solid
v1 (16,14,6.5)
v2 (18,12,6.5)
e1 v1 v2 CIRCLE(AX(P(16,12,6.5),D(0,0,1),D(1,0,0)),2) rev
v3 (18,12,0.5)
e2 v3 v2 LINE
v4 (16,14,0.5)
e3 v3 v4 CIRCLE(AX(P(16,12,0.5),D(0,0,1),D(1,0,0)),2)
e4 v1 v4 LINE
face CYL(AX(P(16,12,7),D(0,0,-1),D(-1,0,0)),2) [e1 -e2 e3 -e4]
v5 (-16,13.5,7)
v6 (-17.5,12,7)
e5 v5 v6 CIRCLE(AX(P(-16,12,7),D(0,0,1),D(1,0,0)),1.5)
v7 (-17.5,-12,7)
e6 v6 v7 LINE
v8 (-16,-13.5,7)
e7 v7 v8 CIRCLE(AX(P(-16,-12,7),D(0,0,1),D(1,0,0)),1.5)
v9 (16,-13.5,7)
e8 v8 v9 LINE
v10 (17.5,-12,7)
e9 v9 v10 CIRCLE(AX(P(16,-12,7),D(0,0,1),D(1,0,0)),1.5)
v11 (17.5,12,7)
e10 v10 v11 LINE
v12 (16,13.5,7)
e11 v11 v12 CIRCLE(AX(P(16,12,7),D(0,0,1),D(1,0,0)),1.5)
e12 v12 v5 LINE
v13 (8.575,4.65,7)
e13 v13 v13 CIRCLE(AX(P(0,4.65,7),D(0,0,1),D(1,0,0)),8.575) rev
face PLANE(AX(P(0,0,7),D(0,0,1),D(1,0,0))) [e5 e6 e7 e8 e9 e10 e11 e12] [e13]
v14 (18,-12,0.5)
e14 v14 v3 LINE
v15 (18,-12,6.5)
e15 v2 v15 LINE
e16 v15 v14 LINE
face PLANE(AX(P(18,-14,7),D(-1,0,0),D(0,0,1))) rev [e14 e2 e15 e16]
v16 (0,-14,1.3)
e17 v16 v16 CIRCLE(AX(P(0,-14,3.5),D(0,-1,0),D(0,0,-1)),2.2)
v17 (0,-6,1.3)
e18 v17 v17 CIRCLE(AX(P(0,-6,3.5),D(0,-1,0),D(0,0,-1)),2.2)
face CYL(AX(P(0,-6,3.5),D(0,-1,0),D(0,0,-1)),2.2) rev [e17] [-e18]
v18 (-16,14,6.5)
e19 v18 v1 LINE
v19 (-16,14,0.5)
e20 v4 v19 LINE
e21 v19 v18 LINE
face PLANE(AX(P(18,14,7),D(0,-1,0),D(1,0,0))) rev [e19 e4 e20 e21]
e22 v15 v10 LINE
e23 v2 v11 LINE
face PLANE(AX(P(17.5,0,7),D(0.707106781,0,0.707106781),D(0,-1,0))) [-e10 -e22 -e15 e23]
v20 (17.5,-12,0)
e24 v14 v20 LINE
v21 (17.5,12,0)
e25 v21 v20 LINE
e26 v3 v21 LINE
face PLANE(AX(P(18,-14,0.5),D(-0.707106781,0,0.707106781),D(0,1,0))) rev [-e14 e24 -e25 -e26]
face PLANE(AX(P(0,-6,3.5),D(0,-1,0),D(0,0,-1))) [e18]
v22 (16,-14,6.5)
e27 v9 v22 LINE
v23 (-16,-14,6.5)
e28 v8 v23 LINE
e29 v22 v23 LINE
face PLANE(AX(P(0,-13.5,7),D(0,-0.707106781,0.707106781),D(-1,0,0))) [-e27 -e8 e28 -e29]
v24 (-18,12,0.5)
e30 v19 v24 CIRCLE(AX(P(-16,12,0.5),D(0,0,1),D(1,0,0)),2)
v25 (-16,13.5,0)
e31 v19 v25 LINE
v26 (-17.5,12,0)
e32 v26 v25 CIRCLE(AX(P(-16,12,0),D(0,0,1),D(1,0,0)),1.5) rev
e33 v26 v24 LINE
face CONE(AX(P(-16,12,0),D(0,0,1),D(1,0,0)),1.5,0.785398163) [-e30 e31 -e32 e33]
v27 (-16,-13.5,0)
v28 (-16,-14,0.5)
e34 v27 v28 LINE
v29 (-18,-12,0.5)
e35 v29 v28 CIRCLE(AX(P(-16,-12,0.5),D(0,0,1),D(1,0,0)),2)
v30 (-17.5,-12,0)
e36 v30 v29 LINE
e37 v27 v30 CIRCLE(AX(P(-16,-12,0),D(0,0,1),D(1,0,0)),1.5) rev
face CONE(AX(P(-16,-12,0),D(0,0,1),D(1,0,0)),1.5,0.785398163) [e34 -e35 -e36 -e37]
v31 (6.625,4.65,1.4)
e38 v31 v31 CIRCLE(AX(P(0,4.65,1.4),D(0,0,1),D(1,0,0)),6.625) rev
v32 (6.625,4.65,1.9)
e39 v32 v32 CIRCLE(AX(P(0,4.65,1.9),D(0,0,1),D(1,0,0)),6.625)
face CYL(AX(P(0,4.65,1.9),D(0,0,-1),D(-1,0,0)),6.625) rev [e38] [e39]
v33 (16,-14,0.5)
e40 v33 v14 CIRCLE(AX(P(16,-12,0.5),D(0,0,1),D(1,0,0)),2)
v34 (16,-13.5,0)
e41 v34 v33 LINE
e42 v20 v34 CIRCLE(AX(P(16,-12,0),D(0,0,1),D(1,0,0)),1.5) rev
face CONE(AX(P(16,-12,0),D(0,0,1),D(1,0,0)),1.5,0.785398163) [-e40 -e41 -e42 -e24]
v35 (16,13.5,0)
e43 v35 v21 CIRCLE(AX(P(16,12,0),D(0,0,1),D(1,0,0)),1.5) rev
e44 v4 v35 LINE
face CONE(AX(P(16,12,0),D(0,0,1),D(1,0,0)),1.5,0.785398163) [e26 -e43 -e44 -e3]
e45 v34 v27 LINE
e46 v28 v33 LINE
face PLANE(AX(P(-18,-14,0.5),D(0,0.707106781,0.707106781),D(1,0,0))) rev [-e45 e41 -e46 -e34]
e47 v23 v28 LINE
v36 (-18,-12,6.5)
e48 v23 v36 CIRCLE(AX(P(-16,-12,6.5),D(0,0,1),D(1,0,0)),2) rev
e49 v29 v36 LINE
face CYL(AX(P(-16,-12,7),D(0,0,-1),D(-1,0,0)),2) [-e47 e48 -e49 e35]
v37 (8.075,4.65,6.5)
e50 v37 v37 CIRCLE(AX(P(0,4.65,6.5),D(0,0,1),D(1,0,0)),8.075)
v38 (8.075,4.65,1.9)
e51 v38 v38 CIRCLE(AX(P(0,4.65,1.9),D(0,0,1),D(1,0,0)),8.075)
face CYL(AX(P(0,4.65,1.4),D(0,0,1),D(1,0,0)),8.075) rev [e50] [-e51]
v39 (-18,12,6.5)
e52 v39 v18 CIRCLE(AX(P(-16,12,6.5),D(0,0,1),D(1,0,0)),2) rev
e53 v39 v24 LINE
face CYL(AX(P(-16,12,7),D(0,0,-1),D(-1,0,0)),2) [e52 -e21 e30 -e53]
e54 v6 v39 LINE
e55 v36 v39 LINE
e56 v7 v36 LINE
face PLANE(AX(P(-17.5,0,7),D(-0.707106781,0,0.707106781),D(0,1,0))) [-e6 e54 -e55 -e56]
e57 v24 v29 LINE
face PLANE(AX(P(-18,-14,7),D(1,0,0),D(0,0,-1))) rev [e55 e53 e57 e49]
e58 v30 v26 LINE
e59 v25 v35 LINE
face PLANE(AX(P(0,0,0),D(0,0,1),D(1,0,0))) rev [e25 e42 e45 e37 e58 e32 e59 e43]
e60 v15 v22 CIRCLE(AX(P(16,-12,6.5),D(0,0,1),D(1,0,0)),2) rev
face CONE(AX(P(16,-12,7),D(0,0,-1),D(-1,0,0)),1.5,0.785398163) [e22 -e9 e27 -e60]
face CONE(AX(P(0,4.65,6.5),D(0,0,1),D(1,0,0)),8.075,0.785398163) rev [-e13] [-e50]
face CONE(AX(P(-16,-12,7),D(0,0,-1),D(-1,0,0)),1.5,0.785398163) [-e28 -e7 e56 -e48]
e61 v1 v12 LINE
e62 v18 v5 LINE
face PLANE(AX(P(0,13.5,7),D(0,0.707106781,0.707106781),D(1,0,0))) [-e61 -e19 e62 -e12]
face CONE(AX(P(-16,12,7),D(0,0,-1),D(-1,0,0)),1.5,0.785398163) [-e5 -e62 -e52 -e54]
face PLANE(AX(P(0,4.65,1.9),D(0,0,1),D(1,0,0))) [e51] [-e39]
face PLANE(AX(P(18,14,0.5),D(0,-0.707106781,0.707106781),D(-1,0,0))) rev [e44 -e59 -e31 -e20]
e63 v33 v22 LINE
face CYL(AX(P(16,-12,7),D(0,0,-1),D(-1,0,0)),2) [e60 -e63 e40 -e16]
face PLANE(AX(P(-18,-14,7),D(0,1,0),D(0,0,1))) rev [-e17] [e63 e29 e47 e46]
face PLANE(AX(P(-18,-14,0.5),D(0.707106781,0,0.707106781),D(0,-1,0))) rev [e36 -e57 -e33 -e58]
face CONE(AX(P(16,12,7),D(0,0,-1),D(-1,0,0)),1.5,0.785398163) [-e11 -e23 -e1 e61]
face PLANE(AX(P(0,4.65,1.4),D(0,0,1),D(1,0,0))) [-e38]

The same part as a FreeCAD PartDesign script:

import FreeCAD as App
import Part
import Sketcher
from FreeCAD import Vector
Q = App.Units.Quantity


def edges_at(feature, points):
    """Names of the edges that pass closest to the given points."""
    edges = feature.Shape.Edges
    near = lambda p: min(range(len(edges)), key=lambda i: edges[i].distToShape(Part.Vertex(*p))[0])
    return sorted({f"Edge{near(p) + 1}" for p in points})

doc = App.newDocument("Part")
body = doc.addObject("PartDesign::Body", "Body")

# Sketch on XY plane
sketch1 = doc.addObject("Sketcher::SketchObject", "Sketch")
body.addObject(sketch1)
sketch1.AttachmentSupport = (doc.XY_Plane, [""])
sketch1.MapMode = "FlatFace"
sketch1.addGeometry([
    Part.LineSegment(Vector(-18, 14, 0), Vector(-18, -14, 0)),
    Part.LineSegment(Vector(-18, -14, 0), Vector(18, -14, 0)),
    Part.LineSegment(Vector(18, -14, 0), Vector(18, 14, 0)),
    Part.LineSegment(Vector(18, 14, 0), Vector(-18, 14, 0)),
], False)
sketch1.addConstraint([
    Sketcher.Constraint("Coincident", 0, 2, 1, 1),
    Sketcher.Constraint("Coincident", 1, 2, 2, 1),
    Sketcher.Constraint("Coincident", 2, 2, 3, 1),
    Sketcher.Constraint("Coincident", 3, 2, 0, 1),
    Sketcher.Constraint("Vertical", 0),
    Sketcher.Constraint("Horizontal", 1),
    Sketcher.Constraint("Vertical", 2),
    Sketcher.Constraint("Horizontal", 3),
    Sketcher.Constraint("Symmetric", 0, 2, 2, 2, -1, 1),
    Sketcher.Constraint("DistanceX", 1, 1, 1, 2, Q("36 mm")),
    Sketcher.Constraint("DistanceY", 0, 2, 0, 1, Q("28 mm")),
])
pad1 = doc.addObject("PartDesign::Pad", "Pad")
body.addObject(pad1)
pad1.Profile = sketch1
pad1.Length = 7

# Sketch on XY plane
sketch2 = doc.addObject("Sketcher::SketchObject", "Sketch001")
body.addObject(sketch2)
sketch2.AttachmentSupport = (doc.XY_Plane, [""])
sketch2.MapMode = "FlatFace"
sketch2.AttachmentOffset = App.Placement(Vector(0, 0, 7), App.Rotation())
sketch2.addGeometry(Part.Circle(Vector(0, 4.65, 0), Vector(0, 0, 1), 8.075), False)
sketch2.addConstraint([
    Sketcher.Constraint("PointOnObject", 0, 3, -2),
    Sketcher.Constraint("Diameter", 0, Q("16.15 mm")),
    Sketcher.Constraint("DistanceY", -1, 1, 0, 3, Q("4.65 mm")),
])
pocket1 = doc.addObject("PartDesign::Pocket", "Pocket")
body.addObject(pocket1)
pocket1.Profile = sketch2
pocket1.Length = 5.6

# Sketch on XY plane
sketch3 = doc.addObject("Sketcher::SketchObject", "Sketch002")
body.addObject(sketch3)
sketch3.AttachmentSupport = (doc.XY_Plane, [""])
sketch3.MapMode = "FlatFace"
sketch3.AttachmentOffset = App.Placement(Vector(0, 0, 1.9), App.Rotation())
sketch3.addGeometry([
    Part.Circle(Vector(0, 4.65, 0), Vector(0, 0, 1), 8.075),
    Part.Circle(Vector(0, 4.65, 0), Vector(0, 0, 1), 6.625),
], False)
sketch3.addConstraint([
    Sketcher.Constraint("Coincident", 1, 3, 0, 3),
    Sketcher.Constraint("PointOnObject", 0, 3, -2),
    Sketcher.Constraint("Diameter", 0, Q("16.15 mm")),
    Sketcher.Constraint("Diameter", 1, Q("13.25 mm")),
    Sketcher.Constraint("DistanceY", -1, 1, 0, 3, Q("4.65 mm")),
])
pad2 = doc.addObject("PartDesign::Pad", "Pad001")
body.addObject(pad2)
pad2.Profile = sketch3
pad2.Length = 0.5
pad2.Reversed = True
doc.recompute()

fillet = doc.addObject("PartDesign::Fillet", "Fillet")
body.addObject(fillet)
fillet.Base = (pad2, edges_at(pad2, [
    (18, -14, 3.5),
    (-18, -14, 3.5),
    (-18, 14, 3.5),
    (18, 14, 3.5),
]))
fillet.Radius = 2

# Sketch on XZ plane
sketch4 = doc.addObject("Sketcher::SketchObject", "Sketch003")
body.addObject(sketch4)
sketch4.AttachmentSupport = (doc.XZ_Plane, [""])
sketch4.MapMode = "FlatFace"
sketch4.AttachmentOffset = App.Placement(Vector(0, 0, 14), App.Rotation())
sketch4.addGeometry(Part.Circle(Vector(0, 3.5, 0), Vector(0, 0, 1), 2.2), False)
sketch4.addConstraint([
    Sketcher.Constraint("PointOnObject", 0, 3, -2),
    Sketcher.Constraint("Diameter", 0, Q("4.4 mm")),
    Sketcher.Constraint("DistanceY", -1, 1, 0, 3, Q("3.5 mm")),
])
pocket2 = doc.addObject("PartDesign::Pocket", "Pocket001")
body.addObject(pocket2)
pocket2.Profile = sketch4
pocket2.Length = 8
doc.recompute()

chamfer = doc.addObject("PartDesign::Chamfer", "Chamfer")
body.addObject(chamfer)
chamfer.Base = (pocket2, edges_at(pocket2, [
    (-8.075, 4.65, 7),
    (0, 14, 0),
    (0, 14, 7),
    (18, 0, 0),
    (0, -14, 0),
    (-18, 0, 0),
    (-17.414, -13.414, 0),
    (-17.414, 13.414, 0),
    (17.414, -13.414, 0),
    (17.414, 13.414, 0),
    (18, 0, 7),
    (-18, 0, 7),
    (0, -14, 7),
    (-17.414, -13.414, 7),
    (-17.414, 13.414, 7),
    (17.414, -13.414, 7),
    (17.414, 13.414, 7),
]))
chamfer.Size = 0.5

doc.recompute()
